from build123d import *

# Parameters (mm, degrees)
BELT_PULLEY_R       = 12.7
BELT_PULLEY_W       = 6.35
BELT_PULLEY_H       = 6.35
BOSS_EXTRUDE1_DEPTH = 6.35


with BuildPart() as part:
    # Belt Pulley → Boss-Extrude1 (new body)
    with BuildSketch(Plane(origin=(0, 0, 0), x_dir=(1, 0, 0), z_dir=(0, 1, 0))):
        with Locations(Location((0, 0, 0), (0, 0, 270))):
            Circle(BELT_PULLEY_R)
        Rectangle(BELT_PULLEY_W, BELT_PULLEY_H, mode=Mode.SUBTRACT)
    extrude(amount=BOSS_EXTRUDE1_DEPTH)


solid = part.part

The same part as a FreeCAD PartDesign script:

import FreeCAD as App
import Part
import Sketcher

V = App.Vector
Q = App.Units.Quantity

doc = App.newDocument("Part")
body = doc.addObject("PartDesign::Body", "Body")

# Sketch on XZ plane
sketch1 = body.newObject("Sketcher::SketchObject", "Sketch")
sketch1.AttachmentSupport = (doc.getObject("XZ_Plane"), [""])
sketch1.MapMode = "FlatFace"
sketch1.addGeometry([
    Part.Circle(V(0, 0, 0), V(0, 0, 1), 12.7),  # 0
    Part.LineSegment(V(3.175, 3.175, 0), V(-3.175, 3.175, 0)),  # 1
    Part.LineSegment(V(-3.175, 3.175, 0), V(-3.175, -3.175, 0)),  # 2
    Part.LineSegment(V(-3.175, -3.175, 0), V(3.175, -3.175, 0)),  # 3
    Part.LineSegment(V(3.175, -3.175, 0), V(3.175, 3.175, 0)),  # 4
], False)
sketch1.addConstraint([
    Sketcher.Constraint("Coincident", 1, 2, 2, 1),
    Sketcher.Constraint("Coincident", 2, 2, 3, 1),
    Sketcher.Constraint("Coincident", 3, 2, 4, 1),
    Sketcher.Constraint("Coincident", 4, 2, 1, 1),
    Sketcher.Constraint("Horizontal", 1),
    Sketcher.Constraint("Vertical", 2),
    Sketcher.Constraint("Horizontal", 3),
    Sketcher.Constraint("Vertical", 4),
    Sketcher.Constraint("Coincident", 0, 3, -1, 1),
    Sketcher.Constraint("Symmetric", 1, 2, 3, 2, -1, 1),
    Sketcher.Constraint("Equal", 3, 2),
    Sketcher.Constraint("Diameter", 0, Q("1 in")),
    Sketcher.Constraint("DistanceX", 1, 2, 1, 1, Q("0.25 in")),
])
pad1 = body.newObject("PartDesign::Pad", "Pad")
pad1.Profile = sketch1
pad1.Length = Q("0.25 in")
pad1.Reversed = True

doc.recompute()
